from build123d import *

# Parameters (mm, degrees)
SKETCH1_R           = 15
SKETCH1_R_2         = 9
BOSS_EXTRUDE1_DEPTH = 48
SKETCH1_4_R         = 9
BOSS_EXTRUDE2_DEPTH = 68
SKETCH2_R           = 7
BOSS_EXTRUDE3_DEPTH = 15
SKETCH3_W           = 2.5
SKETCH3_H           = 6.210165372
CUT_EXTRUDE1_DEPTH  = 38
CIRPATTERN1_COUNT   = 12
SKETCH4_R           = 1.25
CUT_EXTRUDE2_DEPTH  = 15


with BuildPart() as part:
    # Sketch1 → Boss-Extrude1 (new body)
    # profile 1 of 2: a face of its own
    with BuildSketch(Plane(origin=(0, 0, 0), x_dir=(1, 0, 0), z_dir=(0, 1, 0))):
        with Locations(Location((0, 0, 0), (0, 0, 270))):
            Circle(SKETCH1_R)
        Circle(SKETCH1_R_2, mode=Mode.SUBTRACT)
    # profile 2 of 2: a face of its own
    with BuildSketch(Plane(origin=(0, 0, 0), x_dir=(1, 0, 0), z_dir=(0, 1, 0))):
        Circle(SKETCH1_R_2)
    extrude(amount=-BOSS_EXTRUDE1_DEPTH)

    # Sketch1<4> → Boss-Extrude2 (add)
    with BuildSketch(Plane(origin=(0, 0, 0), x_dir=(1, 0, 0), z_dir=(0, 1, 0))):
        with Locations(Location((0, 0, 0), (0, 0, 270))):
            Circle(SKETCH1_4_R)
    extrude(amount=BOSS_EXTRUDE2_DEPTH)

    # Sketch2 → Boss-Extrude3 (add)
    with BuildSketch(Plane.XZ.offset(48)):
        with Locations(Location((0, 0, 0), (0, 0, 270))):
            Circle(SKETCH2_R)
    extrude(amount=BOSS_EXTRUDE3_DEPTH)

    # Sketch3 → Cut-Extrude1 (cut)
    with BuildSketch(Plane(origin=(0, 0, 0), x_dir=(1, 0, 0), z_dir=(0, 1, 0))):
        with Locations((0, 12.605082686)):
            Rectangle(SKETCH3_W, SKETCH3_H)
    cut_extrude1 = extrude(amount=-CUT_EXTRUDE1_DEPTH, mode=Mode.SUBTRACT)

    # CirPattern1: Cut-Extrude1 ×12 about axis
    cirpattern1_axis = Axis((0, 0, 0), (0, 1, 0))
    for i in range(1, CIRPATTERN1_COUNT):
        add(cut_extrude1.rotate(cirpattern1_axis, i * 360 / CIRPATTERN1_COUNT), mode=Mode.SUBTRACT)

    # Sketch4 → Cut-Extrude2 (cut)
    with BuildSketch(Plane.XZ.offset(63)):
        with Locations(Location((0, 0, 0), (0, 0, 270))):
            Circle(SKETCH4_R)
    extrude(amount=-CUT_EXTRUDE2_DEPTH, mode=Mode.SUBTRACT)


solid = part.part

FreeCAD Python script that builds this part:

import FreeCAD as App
import Part
import Sketcher

V = App.Vector
Q = App.Units.Quantity


def add_polygon(sketch, points):
    """Adds a closed chain of lines whose ends are joined by coincident constraints."""
    first, n = sketch.GeometryCount, len(points)
    for a, b in zip(points, points[1:] + points[:1]):
        sketch.addGeometry(Part.LineSegment(App.Vector(*a, 0), App.Vector(*b, 0)), False)
    for i in range(n):
        sketch.addConstraint(Sketcher.Constraint("Coincident", first + i, 2, first + (i + 1) % n, 1))

doc = App.newDocument("Part")
params = doc.addObject("Spreadsheet::Sheet", "Params")
for row, (alias, value) in enumerate([
    ("sketch1_diameter", "30 mm"),
    ("pad1_length", "48 mm"),
    ("sketch2_diameter", "18 mm"),
    ("pad2_length", "68 mm"),
    ("sketch3_diameter", "14 mm"),
    ("pad3_length", "15 mm"),
    ("sketch4_width", "2.5 mm"),
    ("pocket1_length", "38 mm"),
    ("sketch5_diameter", "2.5 mm"),
    ("pocket2_length", "15 mm"),
], start=1):
    params.set(f"A{row}", alias)
    params.set(f"B{row}", "=" + value)
    params.setAlias(f"B{row}", alias)

body = doc.addObject("PartDesign::Body", "Body")

sketch1 = doc.addObject("Sketcher::SketchObject", "Sketch")
body.addObject(sketch1)
sketch1.AttachmentSupport = (doc.XZ_Plane, [""])
sketch1.MapMode = "FlatFace"
sketch1.addGeometry(Part.Circle(V(0, 0, 0), V(0, 0, 1), 15), False)
sketch1.addConstraint(Sketcher.Constraint("Coincident", 0, 3, -1, 1))
sketch1.addConstraint(Sketcher.Constraint("Diameter", 0, Q("30 mm")))
sketch1.setExpression("Constraints[1]", "Params.sketch1_diameter")
pad1 = doc.addObject("PartDesign::Pad", "Pad")
body.addObject(pad1)
pad1.Profile = sketch1
pad1.setExpression("Length", "Params.pad1_length")

sketch2 = doc.addObject("Sketcher::SketchObject", "Sketch001")
body.addObject(sketch2)
sketch2.AttachmentSupport = (doc.XZ_Plane, [""])
sketch2.MapMode = "FlatFace"
sketch2.addGeometry(Part.Circle(V(0, 0, 0), V(0, 0, 1), 9), False)
sketch2.addConstraint(Sketcher.Constraint("Coincident", 0, 3, -1, 1))
sketch2.addConstraint(Sketcher.Constraint("Diameter", 0, Q("18 mm")))
sketch2.setExpression("Constraints[1]", "Params.sketch2_diameter")
pad2 = doc.addObject("PartDesign::Pad", "Pad001")
body.addObject(pad2)
pad2.Profile = sketch2
pad2.setExpression("Length", "Params.pad2_length")
pad2.Reversed = True

sketch3 = doc.addObject("Sketcher::SketchObject", "Sketch002")
body.addObject(sketch3)
sketch3.AttachmentSupport = (doc.XZ_Plane, [""])
sketch3.MapMode = "FlatFace"
sketch3.AttachmentOffset = App.Placement(V(0, 0, 48), App.Rotation())
sketch3.addGeometry(Part.Circle(V(0, 0, 0), V(0, 0, 1), 7), False)
sketch3.addConstraint(Sketcher.Constraint("Coincident", 0, 3, -1, 1))
sketch3.addConstraint(Sketcher.Constraint("Diameter", 0, Q("14 mm")))
sketch3.setExpression("Constraints[1]", "Params.sketch3_diameter")
pad3 = doc.addObject("PartDesign::Pad", "Pad002")
body.addObject(pad3)
pad3.Profile = sketch3
pad3.setExpression("Length", "Params.pad3_length")

sketch4 = doc.addObject("Sketcher::SketchObject", "Sketch003")
body.addObject(sketch4)
sketch4.AttachmentSupport = (doc.XZ_Plane, [""])
sketch4.MapMode = "FlatFace"
add_polygon(sketch4, [(-1.2, -15.7), (-1.2, -9.5), (1.2, -9.5), (1.2, -15.7)])
sketch4.addConstraint(Sketcher.Constraint("Vertical", 0))
sketch4.addConstraint(Sketcher.Constraint("Horizontal", 1))
sketch4.addConstraint(Sketcher.Constraint("Vertical", 2))
sketch4.addConstraint(Sketcher.Constraint("Horizontal", 3))
sketch4.addConstraint(Sketcher.Constraint("DistanceX", 1, 1, 1, 2, Q("2.5 mm")))
sketch4.addConstraint(Sketcher.Constraint("DistanceY", 0, 2, -1, 1, Q("9.5 mm")))
sketch4.addConstraint(Sketcher.Constraint("DistanceX", 0, 2, -1, 1, Q("1.25 mm")))
sketch4.addConstraint(Sketcher.Constraint("DistanceY", 0, 1, 0, 2, Q("6.210165 mm")))
sketch4.setExpression("Constraints[8]", "Params.sketch4_width")
pocket1 = doc.addObject("PartDesign::Pocket", "Pocket")
body.addObject(pocket1)
pocket1.Profile = sketch4
pocket1.setExpression("Length", "Params.pocket1_length")
pocket1.Reversed = True
doc.recompute()

polarpattern = doc.addObject("PartDesign::PolarPattern", "PolarPattern")
body.addObject(polarpattern)
polarpattern.Originals = [pocket1]
polarpattern.Axis = (doc.Y_Axis, [""])
polarpattern.Angle = 360
polarpattern.Occurrences = 12
body.Tip = polarpattern

sketch5 = doc.addObject("Sketcher::SketchObject", "Sketch004")
body.addObject(sketch5)
sketch5.AttachmentSupport = (doc.XZ_Plane, [""])
sketch5.MapMode = "FlatFace"
sketch5.AttachmentOffset = App.Placement(V(0, 0, 63), App.Rotation())
sketch5.addGeometry(Part.Circle(V(0, 0, 0), V(0, 0, 1), 1.2), False)
sketch5.addConstraint(Sketcher.Constraint("Coincident", 0, 3, -1, 1))
sketch5.addConstraint(Sketcher.Constraint("Diameter", 0, Q("2.5 mm")))
sketch5.setExpression("Constraints[1]", "Params.sketch5_diameter")
pocket2 = doc.addObject("PartDesign::Pocket", "Pocket001")
body.addObject(pocket2)
pocket2.Profile = sketch5
pocket2.setExpression("Length", "Params.pocket2_length")

doc.recompute()
